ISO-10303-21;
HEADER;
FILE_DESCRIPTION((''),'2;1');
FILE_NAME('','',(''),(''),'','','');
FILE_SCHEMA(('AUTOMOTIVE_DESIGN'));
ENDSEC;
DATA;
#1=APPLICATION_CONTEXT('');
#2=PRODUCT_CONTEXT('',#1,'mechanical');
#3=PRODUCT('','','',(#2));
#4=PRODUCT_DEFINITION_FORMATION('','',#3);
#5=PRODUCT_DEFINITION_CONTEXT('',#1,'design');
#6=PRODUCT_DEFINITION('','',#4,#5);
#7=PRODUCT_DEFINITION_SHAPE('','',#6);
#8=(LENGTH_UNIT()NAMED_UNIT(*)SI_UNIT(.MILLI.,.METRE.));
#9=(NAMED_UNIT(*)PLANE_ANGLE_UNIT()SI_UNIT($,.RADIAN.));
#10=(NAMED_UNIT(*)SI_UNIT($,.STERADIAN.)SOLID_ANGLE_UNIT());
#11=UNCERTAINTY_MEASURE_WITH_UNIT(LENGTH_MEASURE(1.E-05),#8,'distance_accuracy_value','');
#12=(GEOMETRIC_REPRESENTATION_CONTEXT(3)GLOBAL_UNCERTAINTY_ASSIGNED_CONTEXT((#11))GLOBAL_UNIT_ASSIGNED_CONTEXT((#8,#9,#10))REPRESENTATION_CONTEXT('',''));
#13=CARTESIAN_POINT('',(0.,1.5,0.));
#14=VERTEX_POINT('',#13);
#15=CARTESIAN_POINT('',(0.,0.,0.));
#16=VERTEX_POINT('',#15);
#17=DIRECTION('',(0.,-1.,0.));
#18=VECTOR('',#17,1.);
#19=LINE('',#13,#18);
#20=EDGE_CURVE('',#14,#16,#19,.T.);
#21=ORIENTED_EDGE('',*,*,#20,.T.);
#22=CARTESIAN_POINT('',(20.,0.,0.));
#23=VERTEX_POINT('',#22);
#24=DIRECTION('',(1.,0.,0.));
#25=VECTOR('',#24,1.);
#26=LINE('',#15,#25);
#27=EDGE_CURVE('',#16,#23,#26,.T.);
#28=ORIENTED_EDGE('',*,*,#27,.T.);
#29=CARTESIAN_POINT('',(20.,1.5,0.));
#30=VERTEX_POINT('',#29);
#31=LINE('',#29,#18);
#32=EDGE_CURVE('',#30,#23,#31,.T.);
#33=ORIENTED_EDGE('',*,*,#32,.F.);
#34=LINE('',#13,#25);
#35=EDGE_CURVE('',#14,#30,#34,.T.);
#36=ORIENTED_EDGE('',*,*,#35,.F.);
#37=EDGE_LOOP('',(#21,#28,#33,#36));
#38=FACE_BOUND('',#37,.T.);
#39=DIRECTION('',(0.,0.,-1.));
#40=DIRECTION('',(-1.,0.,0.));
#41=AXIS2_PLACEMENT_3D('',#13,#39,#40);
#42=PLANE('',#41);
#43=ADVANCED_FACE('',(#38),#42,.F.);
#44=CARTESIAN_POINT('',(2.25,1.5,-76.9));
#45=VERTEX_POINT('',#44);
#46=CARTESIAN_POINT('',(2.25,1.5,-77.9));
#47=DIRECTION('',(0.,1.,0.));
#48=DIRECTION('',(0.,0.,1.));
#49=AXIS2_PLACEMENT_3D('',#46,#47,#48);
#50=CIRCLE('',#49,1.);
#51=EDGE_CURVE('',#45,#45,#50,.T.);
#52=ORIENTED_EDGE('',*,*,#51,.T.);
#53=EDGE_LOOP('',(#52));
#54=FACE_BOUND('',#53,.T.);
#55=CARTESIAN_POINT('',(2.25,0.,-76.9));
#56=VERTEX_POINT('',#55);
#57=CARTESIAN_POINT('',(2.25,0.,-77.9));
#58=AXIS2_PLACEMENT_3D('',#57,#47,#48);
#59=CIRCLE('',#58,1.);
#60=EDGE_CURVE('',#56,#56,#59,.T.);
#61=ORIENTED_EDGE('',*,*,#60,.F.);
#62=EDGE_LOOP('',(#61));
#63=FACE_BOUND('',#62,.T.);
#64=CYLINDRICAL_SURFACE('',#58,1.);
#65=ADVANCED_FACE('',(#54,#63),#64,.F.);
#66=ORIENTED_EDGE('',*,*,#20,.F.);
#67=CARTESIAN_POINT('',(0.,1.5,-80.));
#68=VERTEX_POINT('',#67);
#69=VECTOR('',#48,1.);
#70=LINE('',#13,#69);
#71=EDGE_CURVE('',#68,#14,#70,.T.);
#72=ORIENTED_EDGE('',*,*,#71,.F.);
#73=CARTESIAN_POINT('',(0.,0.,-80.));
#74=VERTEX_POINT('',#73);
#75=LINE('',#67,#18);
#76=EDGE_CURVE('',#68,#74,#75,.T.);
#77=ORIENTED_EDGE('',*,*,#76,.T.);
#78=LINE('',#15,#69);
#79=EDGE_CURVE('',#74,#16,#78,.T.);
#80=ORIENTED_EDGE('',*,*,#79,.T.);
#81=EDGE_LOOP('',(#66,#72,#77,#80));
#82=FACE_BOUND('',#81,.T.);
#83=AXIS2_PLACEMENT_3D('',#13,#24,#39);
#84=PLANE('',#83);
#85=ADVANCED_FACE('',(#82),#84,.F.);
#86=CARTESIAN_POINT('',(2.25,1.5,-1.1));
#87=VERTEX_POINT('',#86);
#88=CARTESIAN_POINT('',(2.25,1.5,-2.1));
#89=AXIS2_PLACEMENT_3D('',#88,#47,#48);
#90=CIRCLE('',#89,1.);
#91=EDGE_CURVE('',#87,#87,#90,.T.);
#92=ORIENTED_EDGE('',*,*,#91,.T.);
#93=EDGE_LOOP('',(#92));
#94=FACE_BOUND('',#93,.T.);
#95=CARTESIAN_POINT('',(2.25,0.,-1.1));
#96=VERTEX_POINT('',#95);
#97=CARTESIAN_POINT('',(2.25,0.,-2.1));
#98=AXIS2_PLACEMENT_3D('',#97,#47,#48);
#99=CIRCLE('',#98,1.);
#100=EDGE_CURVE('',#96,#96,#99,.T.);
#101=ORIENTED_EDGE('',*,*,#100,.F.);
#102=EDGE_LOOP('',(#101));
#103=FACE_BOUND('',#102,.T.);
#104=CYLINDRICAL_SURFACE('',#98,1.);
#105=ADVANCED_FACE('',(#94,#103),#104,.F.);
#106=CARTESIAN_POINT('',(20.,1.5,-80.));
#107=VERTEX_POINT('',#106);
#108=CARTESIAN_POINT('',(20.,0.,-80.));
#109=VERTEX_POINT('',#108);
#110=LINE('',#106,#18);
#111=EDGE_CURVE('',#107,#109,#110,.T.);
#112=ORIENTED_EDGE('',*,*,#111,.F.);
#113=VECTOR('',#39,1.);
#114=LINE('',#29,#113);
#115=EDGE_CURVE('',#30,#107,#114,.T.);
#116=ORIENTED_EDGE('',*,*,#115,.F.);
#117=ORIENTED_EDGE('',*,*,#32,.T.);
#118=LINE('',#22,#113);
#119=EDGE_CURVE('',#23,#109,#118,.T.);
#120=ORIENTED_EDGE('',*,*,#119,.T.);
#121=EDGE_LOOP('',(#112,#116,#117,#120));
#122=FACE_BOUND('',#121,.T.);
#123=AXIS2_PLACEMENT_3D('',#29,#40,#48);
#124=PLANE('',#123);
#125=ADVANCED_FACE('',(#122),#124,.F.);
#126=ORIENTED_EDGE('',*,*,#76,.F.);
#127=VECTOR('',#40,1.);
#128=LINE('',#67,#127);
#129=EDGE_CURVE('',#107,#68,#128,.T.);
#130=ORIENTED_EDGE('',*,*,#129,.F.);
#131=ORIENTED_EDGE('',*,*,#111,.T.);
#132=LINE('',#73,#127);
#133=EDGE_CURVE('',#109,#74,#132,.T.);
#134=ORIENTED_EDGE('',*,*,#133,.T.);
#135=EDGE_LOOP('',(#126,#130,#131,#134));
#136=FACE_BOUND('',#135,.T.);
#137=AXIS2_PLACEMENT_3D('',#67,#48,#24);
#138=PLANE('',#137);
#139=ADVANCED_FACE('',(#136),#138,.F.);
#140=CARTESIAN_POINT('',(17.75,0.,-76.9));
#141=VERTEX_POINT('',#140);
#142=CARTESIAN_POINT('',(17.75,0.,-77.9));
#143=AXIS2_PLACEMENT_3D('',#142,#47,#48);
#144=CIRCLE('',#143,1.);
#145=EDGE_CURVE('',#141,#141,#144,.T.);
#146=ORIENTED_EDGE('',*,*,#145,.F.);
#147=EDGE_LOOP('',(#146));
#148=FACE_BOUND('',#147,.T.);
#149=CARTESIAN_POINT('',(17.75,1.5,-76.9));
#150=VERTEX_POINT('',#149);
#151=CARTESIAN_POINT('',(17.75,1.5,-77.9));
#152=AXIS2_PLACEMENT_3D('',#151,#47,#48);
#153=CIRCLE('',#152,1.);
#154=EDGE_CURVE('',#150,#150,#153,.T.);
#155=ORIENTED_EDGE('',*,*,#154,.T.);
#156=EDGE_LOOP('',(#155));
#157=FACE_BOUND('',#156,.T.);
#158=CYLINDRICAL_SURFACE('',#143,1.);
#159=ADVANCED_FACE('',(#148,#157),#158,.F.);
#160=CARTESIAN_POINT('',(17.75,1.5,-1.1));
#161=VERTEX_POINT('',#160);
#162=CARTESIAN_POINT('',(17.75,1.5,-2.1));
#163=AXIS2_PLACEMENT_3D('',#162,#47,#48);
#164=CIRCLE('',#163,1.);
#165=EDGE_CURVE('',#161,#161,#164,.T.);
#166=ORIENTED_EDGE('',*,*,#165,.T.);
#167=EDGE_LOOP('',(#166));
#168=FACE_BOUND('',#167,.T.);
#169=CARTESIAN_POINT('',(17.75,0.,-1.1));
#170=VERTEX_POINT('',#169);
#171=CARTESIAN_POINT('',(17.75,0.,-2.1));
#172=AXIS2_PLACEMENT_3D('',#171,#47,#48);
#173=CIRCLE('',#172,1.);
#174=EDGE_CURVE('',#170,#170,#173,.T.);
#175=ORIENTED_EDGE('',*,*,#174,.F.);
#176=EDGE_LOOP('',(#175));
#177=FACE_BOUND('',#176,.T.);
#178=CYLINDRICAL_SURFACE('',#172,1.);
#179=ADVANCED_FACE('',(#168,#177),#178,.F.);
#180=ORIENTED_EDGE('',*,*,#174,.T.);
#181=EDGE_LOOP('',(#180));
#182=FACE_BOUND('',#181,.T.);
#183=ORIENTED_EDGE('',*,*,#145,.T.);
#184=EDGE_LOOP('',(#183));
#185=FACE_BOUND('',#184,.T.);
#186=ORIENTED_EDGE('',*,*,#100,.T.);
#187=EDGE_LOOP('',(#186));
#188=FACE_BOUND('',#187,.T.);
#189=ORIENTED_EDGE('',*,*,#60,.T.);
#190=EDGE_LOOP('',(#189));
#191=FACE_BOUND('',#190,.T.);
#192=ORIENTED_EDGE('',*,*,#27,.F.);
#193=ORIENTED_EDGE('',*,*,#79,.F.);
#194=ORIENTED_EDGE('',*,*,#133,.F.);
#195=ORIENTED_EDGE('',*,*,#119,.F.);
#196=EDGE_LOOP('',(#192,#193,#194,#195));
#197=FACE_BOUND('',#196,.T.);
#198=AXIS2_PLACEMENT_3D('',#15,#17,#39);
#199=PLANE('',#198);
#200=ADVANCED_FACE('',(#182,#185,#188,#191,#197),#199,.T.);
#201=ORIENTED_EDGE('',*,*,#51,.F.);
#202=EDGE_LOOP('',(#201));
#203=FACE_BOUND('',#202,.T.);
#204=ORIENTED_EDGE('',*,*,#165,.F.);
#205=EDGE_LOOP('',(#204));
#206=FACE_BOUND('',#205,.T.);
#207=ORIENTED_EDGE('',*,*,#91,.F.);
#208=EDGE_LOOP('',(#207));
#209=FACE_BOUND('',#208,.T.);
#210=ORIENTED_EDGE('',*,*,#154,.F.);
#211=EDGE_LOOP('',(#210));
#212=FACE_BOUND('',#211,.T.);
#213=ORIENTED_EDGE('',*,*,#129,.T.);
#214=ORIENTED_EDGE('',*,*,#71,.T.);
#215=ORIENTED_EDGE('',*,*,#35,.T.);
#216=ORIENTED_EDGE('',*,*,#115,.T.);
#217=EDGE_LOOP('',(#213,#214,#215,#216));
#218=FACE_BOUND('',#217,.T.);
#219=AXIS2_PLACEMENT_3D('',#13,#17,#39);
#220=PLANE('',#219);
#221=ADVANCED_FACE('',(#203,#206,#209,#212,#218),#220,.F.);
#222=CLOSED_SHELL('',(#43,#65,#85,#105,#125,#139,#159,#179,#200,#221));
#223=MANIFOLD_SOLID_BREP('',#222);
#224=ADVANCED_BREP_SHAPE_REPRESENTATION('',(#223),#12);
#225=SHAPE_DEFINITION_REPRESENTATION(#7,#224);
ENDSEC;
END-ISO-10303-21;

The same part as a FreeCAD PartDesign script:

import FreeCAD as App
import Part
import Sketcher
Q = App.Units.Quantity

doc = App.newDocument("Part")
params = doc.addObject("Spreadsheet::Sheet", "Params")
for row, (alias, value) in enumerate([
    ("sketch1_width", "20 mm"),
    ("sketch1_height", "80 mm"),
    ("pad1_length", "1.5 mm"),
    ("sketch2_diameter", "2 mm"),
], start=1):
    params.set(f"A{row}", alias)
    params.set(f"B{row}", "=" + value)
    params.setAlias(f"B{row}", alias)

body = doc.addObject("PartDesign::Body", "Body")

# Sketch on XZ plane
sketch1 = body.newObject("Sketcher::SketchObject", "Sketch")
sketch1.AttachmentSupport = (doc.getObject("XZ_Plane"), [""])
sketch1.MapMode = "FlatFace"
sketch1.addGeometry([
    Part.LineSegment(App.Vector(0, -80, 0), App.Vector(0, 0, 0)),
    Part.LineSegment(App.Vector(0, 0, 0), App.Vector(20, 0, 0)),
    Part.LineSegment(App.Vector(20, 0, 0), App.Vector(20, -80, 0)),
    Part.LineSegment(App.Vector(20, -80, 0), App.Vector(0, -80, 0)),
], False)
sketch1.addConstraint([
    Sketcher.Constraint("Coincident", 0, 2, 1, 1),
    Sketcher.Constraint("Coincident", 1, 2, 2, 1),
    Sketcher.Constraint("Coincident", 2, 2, 3, 1),
    Sketcher.Constraint("Coincident", 3, 2, 0, 1),
    Sketcher.Constraint("Vertical", 0),
    Sketcher.Constraint("Horizontal", 1),
    Sketcher.Constraint("Vertical", 2),
    Sketcher.Constraint("Horizontal", 3),
    Sketcher.Constraint("Coincident", 0, 2, -1, 1),
    Sketcher.Constraint("DistanceX", 1, 1, 1, 2, Q("20 mm")),
    Sketcher.Constraint("DistanceY", 0, 1, 0, 2, Q("80 mm")),
])
sketch1.setExpression("Constraints[9]", "Params.sketch1_width")
sketch1.setExpression("Constraints[10]", "Params.sketch1_height")
pad1 = body.newObject("PartDesign::Pad", "Pad")
pad1.Profile = sketch1
pad1.setExpression("Length", "Params.pad1_length")
pad1.Reversed = True

# Sketch on XZ plane
sketch2 = body.newObject("Sketcher::SketchObject", "Sketch001")
sketch2.AttachmentSupport = (doc.getObject("XZ_Plane"), [""])
sketch2.MapMode = "FlatFace"
sketch2.AttachmentOffset = App.Placement(App.Vector(0, 0, -1.5), App.Rotation())
sketch2.addGeometry([
    Part.Circle(App.Vector(2.2, -77.9, 0), App.Vector(0, 0, 1), 1),
    Part.Circle(App.Vector(17.8, -77.9, 0), App.Vector(0, 0, 1), 1),
    Part.Circle(App.Vector(2.2, -2.1, 0), App.Vector(0, 0, 1), 1),
    Part.Circle(App.Vector(17.8, -2.1, 0), App.Vector(0, 0, 1), 1),
], False)
sketch2.addConstraint([
    Sketcher.Constraint("Equal", 0, 1),
    Sketcher.Constraint("Equal", 1, 2),
    Sketcher.Constraint("Equal", 2, 3),
    Sketcher.Constraint("Horizontal", 0, 3, 1, 3),
    Sketcher.Constraint("Horizontal", 2, 3, 3, 3),
    Sketcher.Constraint("Vertical", 0, 3, 2, 3),
    Sketcher.Constraint("Vertical", 1, 3, 3, 3),
    Sketcher.Constraint("Diameter", 0, Q("2 mm")),
    Sketcher.Constraint("DistanceY", 0, 3, -1, 1, Q("77.9 mm")),
    Sketcher.Constraint("DistanceY", 2, 3, -1, 1, Q("2.1 mm")),
    Sketcher.Constraint("DistanceX", 0, 3, 1, 3, Q("15.5 mm")),
    Sketcher.Constraint("DistanceX", -1, 1, 0, 3, Q("2.25 mm")),
])
sketch2.setExpression("Constraints[7]", "Params.sketch2_diameter")
pocket1 = body.newObject("PartDesign::Pocket", "Pocket")
pocket1.Profile = sketch2
pocket1.Type = "ThroughAll"
pocket1.Reversed = True

doc.recompute()
